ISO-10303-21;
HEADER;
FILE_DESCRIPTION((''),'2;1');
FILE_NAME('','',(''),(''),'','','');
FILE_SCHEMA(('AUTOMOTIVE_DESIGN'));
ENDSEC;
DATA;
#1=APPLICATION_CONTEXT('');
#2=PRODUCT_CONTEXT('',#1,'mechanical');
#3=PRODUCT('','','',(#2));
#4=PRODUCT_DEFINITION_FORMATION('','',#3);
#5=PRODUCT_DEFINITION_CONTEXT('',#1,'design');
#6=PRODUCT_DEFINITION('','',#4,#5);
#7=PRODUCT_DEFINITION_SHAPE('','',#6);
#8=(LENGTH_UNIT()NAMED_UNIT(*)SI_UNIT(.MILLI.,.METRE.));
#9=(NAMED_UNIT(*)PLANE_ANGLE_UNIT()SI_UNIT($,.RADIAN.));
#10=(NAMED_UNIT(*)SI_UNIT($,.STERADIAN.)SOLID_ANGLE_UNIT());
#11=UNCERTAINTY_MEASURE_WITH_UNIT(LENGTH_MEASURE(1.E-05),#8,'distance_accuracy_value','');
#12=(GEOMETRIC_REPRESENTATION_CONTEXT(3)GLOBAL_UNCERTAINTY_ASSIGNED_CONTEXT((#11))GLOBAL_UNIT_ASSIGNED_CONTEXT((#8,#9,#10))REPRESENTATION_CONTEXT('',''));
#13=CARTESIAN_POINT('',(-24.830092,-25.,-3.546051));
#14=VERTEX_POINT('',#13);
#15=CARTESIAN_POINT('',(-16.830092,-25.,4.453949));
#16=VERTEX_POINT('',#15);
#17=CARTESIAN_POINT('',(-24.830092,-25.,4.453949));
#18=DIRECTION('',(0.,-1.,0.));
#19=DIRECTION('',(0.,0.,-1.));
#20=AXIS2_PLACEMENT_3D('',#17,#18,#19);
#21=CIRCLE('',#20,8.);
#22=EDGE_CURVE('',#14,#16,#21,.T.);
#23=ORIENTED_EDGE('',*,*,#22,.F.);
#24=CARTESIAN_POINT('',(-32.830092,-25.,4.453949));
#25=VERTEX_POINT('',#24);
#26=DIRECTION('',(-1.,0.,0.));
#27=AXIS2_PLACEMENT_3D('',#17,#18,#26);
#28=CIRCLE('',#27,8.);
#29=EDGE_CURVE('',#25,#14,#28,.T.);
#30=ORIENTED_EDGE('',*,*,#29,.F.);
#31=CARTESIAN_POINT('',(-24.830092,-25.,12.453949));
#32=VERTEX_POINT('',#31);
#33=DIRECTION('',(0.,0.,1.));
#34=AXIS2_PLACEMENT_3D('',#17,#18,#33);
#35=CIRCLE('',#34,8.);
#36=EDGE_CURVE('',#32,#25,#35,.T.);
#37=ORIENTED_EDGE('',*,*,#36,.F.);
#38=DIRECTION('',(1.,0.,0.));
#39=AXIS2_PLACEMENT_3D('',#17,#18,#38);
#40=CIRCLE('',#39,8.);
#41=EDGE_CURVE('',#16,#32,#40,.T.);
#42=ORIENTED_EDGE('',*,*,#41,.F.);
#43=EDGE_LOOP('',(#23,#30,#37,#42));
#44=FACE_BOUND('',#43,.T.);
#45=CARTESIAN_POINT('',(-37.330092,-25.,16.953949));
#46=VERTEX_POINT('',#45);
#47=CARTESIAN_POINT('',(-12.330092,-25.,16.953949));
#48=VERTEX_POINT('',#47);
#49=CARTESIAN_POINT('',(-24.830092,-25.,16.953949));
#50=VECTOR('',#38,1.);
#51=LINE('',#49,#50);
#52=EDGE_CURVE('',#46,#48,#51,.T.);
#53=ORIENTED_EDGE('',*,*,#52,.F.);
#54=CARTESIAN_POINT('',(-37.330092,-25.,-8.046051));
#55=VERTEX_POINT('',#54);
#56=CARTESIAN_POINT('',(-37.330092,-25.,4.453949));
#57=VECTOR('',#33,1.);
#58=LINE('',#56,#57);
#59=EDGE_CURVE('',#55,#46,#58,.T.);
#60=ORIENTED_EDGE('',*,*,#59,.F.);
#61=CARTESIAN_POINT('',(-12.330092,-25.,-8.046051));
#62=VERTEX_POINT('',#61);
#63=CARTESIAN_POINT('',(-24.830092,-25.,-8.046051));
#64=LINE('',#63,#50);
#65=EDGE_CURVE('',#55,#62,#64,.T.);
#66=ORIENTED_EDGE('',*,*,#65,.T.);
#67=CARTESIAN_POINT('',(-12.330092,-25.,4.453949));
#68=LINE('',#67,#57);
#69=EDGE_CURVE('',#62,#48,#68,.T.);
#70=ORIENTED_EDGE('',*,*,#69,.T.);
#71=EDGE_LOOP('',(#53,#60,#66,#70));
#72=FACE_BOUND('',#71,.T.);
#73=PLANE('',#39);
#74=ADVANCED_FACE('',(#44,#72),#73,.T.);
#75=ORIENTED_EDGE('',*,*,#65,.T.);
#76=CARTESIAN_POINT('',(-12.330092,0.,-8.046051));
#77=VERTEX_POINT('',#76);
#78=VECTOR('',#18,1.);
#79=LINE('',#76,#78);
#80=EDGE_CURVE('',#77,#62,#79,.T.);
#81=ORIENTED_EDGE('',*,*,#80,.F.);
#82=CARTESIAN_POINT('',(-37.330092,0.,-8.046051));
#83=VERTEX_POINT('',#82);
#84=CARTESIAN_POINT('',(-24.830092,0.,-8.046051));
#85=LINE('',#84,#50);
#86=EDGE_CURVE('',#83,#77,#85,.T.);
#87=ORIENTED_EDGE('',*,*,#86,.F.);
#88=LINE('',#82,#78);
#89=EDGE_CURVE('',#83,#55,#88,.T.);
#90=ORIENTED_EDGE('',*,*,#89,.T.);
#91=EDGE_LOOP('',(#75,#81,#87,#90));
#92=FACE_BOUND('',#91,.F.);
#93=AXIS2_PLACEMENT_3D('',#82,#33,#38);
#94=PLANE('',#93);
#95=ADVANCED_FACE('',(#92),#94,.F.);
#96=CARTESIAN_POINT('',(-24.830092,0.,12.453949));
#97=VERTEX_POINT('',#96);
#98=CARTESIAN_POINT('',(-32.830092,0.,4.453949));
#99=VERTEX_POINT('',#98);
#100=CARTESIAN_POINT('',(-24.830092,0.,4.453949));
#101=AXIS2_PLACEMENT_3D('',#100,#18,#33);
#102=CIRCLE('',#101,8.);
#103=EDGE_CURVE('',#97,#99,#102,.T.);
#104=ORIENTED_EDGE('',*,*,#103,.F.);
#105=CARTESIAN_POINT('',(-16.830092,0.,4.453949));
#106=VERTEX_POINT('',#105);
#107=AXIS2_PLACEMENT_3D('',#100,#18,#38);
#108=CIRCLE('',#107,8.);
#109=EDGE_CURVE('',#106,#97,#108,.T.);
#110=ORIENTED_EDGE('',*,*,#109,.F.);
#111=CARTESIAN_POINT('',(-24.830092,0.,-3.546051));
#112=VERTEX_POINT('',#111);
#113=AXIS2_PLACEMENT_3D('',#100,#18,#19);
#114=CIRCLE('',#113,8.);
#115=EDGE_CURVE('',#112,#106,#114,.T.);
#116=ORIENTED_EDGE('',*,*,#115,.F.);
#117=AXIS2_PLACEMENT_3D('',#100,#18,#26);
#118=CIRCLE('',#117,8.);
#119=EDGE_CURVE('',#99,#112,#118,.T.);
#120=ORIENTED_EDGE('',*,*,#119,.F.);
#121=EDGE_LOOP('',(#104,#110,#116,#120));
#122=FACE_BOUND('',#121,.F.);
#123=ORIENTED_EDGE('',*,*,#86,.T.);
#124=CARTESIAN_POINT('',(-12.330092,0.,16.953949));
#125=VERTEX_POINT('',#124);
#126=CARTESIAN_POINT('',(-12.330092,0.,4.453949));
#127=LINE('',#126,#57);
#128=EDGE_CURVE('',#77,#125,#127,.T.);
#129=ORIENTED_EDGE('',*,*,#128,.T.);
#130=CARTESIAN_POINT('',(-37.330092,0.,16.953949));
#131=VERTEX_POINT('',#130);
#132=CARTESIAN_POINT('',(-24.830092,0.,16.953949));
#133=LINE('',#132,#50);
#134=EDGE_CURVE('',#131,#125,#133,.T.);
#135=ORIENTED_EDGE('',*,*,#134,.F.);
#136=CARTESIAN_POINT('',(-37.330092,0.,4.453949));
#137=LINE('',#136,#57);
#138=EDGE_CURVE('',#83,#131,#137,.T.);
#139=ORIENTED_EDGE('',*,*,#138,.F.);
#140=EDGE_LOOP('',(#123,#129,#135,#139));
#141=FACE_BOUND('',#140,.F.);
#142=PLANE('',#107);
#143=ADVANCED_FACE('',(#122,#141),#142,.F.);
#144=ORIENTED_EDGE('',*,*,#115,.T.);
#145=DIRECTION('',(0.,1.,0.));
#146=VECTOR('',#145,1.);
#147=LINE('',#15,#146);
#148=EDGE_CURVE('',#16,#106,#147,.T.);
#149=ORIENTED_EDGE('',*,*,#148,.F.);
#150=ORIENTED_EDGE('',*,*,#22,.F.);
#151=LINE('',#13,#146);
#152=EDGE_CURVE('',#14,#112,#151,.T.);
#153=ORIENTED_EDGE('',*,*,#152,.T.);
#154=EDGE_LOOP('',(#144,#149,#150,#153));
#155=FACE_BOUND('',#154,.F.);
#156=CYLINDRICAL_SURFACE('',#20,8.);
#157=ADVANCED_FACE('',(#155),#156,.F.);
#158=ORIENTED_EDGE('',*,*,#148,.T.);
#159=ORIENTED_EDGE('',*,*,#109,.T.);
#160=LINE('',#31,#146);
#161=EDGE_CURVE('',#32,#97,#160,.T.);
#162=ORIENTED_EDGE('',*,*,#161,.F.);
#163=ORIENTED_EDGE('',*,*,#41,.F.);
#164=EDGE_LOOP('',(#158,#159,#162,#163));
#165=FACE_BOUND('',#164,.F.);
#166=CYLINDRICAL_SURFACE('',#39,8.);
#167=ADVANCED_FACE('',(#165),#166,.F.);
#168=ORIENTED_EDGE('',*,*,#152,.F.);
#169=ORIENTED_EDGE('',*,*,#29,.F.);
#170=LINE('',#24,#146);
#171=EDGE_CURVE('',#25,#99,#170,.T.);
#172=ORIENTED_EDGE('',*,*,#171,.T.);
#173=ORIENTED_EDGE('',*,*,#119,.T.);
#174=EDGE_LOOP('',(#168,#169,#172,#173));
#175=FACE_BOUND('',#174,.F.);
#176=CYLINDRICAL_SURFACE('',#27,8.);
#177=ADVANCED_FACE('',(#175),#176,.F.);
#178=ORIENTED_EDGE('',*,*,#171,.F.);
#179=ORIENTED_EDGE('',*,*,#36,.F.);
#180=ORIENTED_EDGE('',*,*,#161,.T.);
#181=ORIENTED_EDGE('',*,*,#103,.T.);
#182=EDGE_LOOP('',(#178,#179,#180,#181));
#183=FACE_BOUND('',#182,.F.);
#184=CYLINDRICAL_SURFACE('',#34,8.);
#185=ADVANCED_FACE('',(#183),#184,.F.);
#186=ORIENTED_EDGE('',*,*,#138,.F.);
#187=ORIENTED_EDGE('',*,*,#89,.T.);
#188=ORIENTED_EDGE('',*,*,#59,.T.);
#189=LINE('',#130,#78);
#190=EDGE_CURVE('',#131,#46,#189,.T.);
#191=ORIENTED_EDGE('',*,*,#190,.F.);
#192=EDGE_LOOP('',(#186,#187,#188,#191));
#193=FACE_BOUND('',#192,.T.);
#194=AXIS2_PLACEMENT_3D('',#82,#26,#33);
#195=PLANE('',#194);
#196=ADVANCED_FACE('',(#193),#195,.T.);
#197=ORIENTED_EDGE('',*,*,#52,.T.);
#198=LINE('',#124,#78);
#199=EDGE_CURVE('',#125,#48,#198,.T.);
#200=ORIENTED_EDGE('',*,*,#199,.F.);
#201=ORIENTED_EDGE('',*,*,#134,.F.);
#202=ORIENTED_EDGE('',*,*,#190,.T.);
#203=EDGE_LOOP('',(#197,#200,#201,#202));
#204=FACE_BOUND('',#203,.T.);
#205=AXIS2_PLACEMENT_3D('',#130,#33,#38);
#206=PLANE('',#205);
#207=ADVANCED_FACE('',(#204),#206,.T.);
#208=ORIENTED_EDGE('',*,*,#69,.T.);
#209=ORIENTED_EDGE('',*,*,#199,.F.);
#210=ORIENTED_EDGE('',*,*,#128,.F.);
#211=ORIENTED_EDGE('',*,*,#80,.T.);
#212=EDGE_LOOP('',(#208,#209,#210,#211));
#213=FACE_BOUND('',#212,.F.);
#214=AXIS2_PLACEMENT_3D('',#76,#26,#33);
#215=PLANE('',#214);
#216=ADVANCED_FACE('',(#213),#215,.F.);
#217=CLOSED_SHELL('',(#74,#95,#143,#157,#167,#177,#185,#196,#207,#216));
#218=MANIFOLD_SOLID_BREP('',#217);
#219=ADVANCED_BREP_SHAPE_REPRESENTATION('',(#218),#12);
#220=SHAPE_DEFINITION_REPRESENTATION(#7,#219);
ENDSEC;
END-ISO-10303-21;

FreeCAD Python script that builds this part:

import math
import FreeCAD as App
import Part
import Sketcher
Q = App.Units.Quantity

doc = App.newDocument("Part")
body = doc.addObject("PartDesign::Body", "Body")

sketch1 = body.newObject("Sketcher::SketchObject", "Sketch")
sketch1.AttachmentSupport = (doc.getObject("XZ_Plane"), [""])
sketch1.MapMode = "FlatFace"
sketch1.addGeometry([
    Part.LineSegment(App.Vector(-37.330092, 16.953949, 0), App.Vector(-37.330092, -8.046051, 0)),
    Part.LineSegment(App.Vector(-37.330092, -8.046051, 0), App.Vector(-12.330092, -8.046051, 0)),
    Part.LineSegment(App.Vector(-12.330092, -8.046051, 0), App.Vector(-12.330092, 16.953949, 0)),
    Part.LineSegment(App.Vector(-12.330092, 16.953949, 0), App.Vector(-37.330092, 16.953949, 0)),
], False)
sketch1.addConstraint([
    Sketcher.Constraint("Coincident", 0, 2, 1, 1),
    Sketcher.Constraint("Coincident", 1, 2, 2, 1),
    Sketcher.Constraint("Coincident", 2, 2, 3, 1),
    Sketcher.Constraint("Coincident", 3, 2, 0, 1),
    Sketcher.Constraint("Vertical", 0),
    Sketcher.Constraint("Horizontal", 1),
    Sketcher.Constraint("Vertical", 2),
    Sketcher.Constraint("Horizontal", 3),
    Sketcher.Constraint("Equal", 3, 0),
    Sketcher.Constraint("DistanceX", 1, 1, 1, 2, Q("25 mm")),
    Sketcher.Constraint("DistanceY", 0, 2, -1, 1, Q("8.046051 mm")),
    Sketcher.Constraint("DistanceX", 0, 2, -1, 1, Q("37.330092 mm")),
])
pad1 = body.newObject("PartDesign::Pad", "Pad")
pad1.Profile = sketch1
pad1.Length = 25

sketch2 = body.newObject("Sketcher::SketchObject", "Sketch001")
sketch2.AttachmentSupport = (doc.getObject("XZ_Plane"), [""])
sketch2.MapMode = "FlatFace"
sketch2.AttachmentOffset = App.Placement(App.Vector(0, 0, 25), App.Rotation())
sketch2.addGeometry([
    Part.ArcOfCircle(Part.Circle(App.Vector(-24.830092, 4.453949, 0), App.Vector(0, 0, 1), 8), math.radians(0), math.radians(90)),
    Part.ArcOfCircle(Part.Circle(App.Vector(-24.830092, 4.453949, 0), App.Vector(0, 0, 1), 8), math.radians(90), math.radians(180)),
    Part.ArcOfCircle(Part.Circle(App.Vector(-24.830092, 4.453949, 0), App.Vector(0, 0, 1), 8), math.radians(180), math.radians(270)),
    Part.ArcOfCircle(Part.Circle(App.Vector(-24.830092, 4.453949, 0), App.Vector(0, 0, 1), 8), math.radians(-90), math.radians(0)),
], False)
sketch2.addConstraint([
    Sketcher.Constraint("Tangent", 0, 2, 1, 1),
    Sketcher.Constraint("Tangent", 1, 2, 2, 1),
    Sketcher.Constraint("Tangent", 2, 2, 3, 1),
    Sketcher.Constraint("Tangent", 3, 2, 0, 1),
    Sketcher.Constraint("Equal", 0, 1),
    Sketcher.Constraint("Horizontal", 3, 3, 1, 2),
    Sketcher.Constraint("Horizontal", 1, 2, 3, 2),
    Sketcher.Constraint("Vertical", 3, 3, 0, 2),
    Sketcher.Constraint("Vertical", 0, 2, 2, 2),
    Sketcher.Constraint("Radius", 0, Q("8 mm")),
    Sketcher.Constraint("DistanceY", -1, 1, 0, 3, Q("4.453949 mm")),
    Sketcher.Constraint("DistanceX", 0, 3, -1, 1, Q("24.830092 mm")),
])
pocket1 = body.newObject("PartDesign::Pocket", "Pocket")
pocket1.Profile = sketch2
pocket1.Length = 25

doc.recompute()
